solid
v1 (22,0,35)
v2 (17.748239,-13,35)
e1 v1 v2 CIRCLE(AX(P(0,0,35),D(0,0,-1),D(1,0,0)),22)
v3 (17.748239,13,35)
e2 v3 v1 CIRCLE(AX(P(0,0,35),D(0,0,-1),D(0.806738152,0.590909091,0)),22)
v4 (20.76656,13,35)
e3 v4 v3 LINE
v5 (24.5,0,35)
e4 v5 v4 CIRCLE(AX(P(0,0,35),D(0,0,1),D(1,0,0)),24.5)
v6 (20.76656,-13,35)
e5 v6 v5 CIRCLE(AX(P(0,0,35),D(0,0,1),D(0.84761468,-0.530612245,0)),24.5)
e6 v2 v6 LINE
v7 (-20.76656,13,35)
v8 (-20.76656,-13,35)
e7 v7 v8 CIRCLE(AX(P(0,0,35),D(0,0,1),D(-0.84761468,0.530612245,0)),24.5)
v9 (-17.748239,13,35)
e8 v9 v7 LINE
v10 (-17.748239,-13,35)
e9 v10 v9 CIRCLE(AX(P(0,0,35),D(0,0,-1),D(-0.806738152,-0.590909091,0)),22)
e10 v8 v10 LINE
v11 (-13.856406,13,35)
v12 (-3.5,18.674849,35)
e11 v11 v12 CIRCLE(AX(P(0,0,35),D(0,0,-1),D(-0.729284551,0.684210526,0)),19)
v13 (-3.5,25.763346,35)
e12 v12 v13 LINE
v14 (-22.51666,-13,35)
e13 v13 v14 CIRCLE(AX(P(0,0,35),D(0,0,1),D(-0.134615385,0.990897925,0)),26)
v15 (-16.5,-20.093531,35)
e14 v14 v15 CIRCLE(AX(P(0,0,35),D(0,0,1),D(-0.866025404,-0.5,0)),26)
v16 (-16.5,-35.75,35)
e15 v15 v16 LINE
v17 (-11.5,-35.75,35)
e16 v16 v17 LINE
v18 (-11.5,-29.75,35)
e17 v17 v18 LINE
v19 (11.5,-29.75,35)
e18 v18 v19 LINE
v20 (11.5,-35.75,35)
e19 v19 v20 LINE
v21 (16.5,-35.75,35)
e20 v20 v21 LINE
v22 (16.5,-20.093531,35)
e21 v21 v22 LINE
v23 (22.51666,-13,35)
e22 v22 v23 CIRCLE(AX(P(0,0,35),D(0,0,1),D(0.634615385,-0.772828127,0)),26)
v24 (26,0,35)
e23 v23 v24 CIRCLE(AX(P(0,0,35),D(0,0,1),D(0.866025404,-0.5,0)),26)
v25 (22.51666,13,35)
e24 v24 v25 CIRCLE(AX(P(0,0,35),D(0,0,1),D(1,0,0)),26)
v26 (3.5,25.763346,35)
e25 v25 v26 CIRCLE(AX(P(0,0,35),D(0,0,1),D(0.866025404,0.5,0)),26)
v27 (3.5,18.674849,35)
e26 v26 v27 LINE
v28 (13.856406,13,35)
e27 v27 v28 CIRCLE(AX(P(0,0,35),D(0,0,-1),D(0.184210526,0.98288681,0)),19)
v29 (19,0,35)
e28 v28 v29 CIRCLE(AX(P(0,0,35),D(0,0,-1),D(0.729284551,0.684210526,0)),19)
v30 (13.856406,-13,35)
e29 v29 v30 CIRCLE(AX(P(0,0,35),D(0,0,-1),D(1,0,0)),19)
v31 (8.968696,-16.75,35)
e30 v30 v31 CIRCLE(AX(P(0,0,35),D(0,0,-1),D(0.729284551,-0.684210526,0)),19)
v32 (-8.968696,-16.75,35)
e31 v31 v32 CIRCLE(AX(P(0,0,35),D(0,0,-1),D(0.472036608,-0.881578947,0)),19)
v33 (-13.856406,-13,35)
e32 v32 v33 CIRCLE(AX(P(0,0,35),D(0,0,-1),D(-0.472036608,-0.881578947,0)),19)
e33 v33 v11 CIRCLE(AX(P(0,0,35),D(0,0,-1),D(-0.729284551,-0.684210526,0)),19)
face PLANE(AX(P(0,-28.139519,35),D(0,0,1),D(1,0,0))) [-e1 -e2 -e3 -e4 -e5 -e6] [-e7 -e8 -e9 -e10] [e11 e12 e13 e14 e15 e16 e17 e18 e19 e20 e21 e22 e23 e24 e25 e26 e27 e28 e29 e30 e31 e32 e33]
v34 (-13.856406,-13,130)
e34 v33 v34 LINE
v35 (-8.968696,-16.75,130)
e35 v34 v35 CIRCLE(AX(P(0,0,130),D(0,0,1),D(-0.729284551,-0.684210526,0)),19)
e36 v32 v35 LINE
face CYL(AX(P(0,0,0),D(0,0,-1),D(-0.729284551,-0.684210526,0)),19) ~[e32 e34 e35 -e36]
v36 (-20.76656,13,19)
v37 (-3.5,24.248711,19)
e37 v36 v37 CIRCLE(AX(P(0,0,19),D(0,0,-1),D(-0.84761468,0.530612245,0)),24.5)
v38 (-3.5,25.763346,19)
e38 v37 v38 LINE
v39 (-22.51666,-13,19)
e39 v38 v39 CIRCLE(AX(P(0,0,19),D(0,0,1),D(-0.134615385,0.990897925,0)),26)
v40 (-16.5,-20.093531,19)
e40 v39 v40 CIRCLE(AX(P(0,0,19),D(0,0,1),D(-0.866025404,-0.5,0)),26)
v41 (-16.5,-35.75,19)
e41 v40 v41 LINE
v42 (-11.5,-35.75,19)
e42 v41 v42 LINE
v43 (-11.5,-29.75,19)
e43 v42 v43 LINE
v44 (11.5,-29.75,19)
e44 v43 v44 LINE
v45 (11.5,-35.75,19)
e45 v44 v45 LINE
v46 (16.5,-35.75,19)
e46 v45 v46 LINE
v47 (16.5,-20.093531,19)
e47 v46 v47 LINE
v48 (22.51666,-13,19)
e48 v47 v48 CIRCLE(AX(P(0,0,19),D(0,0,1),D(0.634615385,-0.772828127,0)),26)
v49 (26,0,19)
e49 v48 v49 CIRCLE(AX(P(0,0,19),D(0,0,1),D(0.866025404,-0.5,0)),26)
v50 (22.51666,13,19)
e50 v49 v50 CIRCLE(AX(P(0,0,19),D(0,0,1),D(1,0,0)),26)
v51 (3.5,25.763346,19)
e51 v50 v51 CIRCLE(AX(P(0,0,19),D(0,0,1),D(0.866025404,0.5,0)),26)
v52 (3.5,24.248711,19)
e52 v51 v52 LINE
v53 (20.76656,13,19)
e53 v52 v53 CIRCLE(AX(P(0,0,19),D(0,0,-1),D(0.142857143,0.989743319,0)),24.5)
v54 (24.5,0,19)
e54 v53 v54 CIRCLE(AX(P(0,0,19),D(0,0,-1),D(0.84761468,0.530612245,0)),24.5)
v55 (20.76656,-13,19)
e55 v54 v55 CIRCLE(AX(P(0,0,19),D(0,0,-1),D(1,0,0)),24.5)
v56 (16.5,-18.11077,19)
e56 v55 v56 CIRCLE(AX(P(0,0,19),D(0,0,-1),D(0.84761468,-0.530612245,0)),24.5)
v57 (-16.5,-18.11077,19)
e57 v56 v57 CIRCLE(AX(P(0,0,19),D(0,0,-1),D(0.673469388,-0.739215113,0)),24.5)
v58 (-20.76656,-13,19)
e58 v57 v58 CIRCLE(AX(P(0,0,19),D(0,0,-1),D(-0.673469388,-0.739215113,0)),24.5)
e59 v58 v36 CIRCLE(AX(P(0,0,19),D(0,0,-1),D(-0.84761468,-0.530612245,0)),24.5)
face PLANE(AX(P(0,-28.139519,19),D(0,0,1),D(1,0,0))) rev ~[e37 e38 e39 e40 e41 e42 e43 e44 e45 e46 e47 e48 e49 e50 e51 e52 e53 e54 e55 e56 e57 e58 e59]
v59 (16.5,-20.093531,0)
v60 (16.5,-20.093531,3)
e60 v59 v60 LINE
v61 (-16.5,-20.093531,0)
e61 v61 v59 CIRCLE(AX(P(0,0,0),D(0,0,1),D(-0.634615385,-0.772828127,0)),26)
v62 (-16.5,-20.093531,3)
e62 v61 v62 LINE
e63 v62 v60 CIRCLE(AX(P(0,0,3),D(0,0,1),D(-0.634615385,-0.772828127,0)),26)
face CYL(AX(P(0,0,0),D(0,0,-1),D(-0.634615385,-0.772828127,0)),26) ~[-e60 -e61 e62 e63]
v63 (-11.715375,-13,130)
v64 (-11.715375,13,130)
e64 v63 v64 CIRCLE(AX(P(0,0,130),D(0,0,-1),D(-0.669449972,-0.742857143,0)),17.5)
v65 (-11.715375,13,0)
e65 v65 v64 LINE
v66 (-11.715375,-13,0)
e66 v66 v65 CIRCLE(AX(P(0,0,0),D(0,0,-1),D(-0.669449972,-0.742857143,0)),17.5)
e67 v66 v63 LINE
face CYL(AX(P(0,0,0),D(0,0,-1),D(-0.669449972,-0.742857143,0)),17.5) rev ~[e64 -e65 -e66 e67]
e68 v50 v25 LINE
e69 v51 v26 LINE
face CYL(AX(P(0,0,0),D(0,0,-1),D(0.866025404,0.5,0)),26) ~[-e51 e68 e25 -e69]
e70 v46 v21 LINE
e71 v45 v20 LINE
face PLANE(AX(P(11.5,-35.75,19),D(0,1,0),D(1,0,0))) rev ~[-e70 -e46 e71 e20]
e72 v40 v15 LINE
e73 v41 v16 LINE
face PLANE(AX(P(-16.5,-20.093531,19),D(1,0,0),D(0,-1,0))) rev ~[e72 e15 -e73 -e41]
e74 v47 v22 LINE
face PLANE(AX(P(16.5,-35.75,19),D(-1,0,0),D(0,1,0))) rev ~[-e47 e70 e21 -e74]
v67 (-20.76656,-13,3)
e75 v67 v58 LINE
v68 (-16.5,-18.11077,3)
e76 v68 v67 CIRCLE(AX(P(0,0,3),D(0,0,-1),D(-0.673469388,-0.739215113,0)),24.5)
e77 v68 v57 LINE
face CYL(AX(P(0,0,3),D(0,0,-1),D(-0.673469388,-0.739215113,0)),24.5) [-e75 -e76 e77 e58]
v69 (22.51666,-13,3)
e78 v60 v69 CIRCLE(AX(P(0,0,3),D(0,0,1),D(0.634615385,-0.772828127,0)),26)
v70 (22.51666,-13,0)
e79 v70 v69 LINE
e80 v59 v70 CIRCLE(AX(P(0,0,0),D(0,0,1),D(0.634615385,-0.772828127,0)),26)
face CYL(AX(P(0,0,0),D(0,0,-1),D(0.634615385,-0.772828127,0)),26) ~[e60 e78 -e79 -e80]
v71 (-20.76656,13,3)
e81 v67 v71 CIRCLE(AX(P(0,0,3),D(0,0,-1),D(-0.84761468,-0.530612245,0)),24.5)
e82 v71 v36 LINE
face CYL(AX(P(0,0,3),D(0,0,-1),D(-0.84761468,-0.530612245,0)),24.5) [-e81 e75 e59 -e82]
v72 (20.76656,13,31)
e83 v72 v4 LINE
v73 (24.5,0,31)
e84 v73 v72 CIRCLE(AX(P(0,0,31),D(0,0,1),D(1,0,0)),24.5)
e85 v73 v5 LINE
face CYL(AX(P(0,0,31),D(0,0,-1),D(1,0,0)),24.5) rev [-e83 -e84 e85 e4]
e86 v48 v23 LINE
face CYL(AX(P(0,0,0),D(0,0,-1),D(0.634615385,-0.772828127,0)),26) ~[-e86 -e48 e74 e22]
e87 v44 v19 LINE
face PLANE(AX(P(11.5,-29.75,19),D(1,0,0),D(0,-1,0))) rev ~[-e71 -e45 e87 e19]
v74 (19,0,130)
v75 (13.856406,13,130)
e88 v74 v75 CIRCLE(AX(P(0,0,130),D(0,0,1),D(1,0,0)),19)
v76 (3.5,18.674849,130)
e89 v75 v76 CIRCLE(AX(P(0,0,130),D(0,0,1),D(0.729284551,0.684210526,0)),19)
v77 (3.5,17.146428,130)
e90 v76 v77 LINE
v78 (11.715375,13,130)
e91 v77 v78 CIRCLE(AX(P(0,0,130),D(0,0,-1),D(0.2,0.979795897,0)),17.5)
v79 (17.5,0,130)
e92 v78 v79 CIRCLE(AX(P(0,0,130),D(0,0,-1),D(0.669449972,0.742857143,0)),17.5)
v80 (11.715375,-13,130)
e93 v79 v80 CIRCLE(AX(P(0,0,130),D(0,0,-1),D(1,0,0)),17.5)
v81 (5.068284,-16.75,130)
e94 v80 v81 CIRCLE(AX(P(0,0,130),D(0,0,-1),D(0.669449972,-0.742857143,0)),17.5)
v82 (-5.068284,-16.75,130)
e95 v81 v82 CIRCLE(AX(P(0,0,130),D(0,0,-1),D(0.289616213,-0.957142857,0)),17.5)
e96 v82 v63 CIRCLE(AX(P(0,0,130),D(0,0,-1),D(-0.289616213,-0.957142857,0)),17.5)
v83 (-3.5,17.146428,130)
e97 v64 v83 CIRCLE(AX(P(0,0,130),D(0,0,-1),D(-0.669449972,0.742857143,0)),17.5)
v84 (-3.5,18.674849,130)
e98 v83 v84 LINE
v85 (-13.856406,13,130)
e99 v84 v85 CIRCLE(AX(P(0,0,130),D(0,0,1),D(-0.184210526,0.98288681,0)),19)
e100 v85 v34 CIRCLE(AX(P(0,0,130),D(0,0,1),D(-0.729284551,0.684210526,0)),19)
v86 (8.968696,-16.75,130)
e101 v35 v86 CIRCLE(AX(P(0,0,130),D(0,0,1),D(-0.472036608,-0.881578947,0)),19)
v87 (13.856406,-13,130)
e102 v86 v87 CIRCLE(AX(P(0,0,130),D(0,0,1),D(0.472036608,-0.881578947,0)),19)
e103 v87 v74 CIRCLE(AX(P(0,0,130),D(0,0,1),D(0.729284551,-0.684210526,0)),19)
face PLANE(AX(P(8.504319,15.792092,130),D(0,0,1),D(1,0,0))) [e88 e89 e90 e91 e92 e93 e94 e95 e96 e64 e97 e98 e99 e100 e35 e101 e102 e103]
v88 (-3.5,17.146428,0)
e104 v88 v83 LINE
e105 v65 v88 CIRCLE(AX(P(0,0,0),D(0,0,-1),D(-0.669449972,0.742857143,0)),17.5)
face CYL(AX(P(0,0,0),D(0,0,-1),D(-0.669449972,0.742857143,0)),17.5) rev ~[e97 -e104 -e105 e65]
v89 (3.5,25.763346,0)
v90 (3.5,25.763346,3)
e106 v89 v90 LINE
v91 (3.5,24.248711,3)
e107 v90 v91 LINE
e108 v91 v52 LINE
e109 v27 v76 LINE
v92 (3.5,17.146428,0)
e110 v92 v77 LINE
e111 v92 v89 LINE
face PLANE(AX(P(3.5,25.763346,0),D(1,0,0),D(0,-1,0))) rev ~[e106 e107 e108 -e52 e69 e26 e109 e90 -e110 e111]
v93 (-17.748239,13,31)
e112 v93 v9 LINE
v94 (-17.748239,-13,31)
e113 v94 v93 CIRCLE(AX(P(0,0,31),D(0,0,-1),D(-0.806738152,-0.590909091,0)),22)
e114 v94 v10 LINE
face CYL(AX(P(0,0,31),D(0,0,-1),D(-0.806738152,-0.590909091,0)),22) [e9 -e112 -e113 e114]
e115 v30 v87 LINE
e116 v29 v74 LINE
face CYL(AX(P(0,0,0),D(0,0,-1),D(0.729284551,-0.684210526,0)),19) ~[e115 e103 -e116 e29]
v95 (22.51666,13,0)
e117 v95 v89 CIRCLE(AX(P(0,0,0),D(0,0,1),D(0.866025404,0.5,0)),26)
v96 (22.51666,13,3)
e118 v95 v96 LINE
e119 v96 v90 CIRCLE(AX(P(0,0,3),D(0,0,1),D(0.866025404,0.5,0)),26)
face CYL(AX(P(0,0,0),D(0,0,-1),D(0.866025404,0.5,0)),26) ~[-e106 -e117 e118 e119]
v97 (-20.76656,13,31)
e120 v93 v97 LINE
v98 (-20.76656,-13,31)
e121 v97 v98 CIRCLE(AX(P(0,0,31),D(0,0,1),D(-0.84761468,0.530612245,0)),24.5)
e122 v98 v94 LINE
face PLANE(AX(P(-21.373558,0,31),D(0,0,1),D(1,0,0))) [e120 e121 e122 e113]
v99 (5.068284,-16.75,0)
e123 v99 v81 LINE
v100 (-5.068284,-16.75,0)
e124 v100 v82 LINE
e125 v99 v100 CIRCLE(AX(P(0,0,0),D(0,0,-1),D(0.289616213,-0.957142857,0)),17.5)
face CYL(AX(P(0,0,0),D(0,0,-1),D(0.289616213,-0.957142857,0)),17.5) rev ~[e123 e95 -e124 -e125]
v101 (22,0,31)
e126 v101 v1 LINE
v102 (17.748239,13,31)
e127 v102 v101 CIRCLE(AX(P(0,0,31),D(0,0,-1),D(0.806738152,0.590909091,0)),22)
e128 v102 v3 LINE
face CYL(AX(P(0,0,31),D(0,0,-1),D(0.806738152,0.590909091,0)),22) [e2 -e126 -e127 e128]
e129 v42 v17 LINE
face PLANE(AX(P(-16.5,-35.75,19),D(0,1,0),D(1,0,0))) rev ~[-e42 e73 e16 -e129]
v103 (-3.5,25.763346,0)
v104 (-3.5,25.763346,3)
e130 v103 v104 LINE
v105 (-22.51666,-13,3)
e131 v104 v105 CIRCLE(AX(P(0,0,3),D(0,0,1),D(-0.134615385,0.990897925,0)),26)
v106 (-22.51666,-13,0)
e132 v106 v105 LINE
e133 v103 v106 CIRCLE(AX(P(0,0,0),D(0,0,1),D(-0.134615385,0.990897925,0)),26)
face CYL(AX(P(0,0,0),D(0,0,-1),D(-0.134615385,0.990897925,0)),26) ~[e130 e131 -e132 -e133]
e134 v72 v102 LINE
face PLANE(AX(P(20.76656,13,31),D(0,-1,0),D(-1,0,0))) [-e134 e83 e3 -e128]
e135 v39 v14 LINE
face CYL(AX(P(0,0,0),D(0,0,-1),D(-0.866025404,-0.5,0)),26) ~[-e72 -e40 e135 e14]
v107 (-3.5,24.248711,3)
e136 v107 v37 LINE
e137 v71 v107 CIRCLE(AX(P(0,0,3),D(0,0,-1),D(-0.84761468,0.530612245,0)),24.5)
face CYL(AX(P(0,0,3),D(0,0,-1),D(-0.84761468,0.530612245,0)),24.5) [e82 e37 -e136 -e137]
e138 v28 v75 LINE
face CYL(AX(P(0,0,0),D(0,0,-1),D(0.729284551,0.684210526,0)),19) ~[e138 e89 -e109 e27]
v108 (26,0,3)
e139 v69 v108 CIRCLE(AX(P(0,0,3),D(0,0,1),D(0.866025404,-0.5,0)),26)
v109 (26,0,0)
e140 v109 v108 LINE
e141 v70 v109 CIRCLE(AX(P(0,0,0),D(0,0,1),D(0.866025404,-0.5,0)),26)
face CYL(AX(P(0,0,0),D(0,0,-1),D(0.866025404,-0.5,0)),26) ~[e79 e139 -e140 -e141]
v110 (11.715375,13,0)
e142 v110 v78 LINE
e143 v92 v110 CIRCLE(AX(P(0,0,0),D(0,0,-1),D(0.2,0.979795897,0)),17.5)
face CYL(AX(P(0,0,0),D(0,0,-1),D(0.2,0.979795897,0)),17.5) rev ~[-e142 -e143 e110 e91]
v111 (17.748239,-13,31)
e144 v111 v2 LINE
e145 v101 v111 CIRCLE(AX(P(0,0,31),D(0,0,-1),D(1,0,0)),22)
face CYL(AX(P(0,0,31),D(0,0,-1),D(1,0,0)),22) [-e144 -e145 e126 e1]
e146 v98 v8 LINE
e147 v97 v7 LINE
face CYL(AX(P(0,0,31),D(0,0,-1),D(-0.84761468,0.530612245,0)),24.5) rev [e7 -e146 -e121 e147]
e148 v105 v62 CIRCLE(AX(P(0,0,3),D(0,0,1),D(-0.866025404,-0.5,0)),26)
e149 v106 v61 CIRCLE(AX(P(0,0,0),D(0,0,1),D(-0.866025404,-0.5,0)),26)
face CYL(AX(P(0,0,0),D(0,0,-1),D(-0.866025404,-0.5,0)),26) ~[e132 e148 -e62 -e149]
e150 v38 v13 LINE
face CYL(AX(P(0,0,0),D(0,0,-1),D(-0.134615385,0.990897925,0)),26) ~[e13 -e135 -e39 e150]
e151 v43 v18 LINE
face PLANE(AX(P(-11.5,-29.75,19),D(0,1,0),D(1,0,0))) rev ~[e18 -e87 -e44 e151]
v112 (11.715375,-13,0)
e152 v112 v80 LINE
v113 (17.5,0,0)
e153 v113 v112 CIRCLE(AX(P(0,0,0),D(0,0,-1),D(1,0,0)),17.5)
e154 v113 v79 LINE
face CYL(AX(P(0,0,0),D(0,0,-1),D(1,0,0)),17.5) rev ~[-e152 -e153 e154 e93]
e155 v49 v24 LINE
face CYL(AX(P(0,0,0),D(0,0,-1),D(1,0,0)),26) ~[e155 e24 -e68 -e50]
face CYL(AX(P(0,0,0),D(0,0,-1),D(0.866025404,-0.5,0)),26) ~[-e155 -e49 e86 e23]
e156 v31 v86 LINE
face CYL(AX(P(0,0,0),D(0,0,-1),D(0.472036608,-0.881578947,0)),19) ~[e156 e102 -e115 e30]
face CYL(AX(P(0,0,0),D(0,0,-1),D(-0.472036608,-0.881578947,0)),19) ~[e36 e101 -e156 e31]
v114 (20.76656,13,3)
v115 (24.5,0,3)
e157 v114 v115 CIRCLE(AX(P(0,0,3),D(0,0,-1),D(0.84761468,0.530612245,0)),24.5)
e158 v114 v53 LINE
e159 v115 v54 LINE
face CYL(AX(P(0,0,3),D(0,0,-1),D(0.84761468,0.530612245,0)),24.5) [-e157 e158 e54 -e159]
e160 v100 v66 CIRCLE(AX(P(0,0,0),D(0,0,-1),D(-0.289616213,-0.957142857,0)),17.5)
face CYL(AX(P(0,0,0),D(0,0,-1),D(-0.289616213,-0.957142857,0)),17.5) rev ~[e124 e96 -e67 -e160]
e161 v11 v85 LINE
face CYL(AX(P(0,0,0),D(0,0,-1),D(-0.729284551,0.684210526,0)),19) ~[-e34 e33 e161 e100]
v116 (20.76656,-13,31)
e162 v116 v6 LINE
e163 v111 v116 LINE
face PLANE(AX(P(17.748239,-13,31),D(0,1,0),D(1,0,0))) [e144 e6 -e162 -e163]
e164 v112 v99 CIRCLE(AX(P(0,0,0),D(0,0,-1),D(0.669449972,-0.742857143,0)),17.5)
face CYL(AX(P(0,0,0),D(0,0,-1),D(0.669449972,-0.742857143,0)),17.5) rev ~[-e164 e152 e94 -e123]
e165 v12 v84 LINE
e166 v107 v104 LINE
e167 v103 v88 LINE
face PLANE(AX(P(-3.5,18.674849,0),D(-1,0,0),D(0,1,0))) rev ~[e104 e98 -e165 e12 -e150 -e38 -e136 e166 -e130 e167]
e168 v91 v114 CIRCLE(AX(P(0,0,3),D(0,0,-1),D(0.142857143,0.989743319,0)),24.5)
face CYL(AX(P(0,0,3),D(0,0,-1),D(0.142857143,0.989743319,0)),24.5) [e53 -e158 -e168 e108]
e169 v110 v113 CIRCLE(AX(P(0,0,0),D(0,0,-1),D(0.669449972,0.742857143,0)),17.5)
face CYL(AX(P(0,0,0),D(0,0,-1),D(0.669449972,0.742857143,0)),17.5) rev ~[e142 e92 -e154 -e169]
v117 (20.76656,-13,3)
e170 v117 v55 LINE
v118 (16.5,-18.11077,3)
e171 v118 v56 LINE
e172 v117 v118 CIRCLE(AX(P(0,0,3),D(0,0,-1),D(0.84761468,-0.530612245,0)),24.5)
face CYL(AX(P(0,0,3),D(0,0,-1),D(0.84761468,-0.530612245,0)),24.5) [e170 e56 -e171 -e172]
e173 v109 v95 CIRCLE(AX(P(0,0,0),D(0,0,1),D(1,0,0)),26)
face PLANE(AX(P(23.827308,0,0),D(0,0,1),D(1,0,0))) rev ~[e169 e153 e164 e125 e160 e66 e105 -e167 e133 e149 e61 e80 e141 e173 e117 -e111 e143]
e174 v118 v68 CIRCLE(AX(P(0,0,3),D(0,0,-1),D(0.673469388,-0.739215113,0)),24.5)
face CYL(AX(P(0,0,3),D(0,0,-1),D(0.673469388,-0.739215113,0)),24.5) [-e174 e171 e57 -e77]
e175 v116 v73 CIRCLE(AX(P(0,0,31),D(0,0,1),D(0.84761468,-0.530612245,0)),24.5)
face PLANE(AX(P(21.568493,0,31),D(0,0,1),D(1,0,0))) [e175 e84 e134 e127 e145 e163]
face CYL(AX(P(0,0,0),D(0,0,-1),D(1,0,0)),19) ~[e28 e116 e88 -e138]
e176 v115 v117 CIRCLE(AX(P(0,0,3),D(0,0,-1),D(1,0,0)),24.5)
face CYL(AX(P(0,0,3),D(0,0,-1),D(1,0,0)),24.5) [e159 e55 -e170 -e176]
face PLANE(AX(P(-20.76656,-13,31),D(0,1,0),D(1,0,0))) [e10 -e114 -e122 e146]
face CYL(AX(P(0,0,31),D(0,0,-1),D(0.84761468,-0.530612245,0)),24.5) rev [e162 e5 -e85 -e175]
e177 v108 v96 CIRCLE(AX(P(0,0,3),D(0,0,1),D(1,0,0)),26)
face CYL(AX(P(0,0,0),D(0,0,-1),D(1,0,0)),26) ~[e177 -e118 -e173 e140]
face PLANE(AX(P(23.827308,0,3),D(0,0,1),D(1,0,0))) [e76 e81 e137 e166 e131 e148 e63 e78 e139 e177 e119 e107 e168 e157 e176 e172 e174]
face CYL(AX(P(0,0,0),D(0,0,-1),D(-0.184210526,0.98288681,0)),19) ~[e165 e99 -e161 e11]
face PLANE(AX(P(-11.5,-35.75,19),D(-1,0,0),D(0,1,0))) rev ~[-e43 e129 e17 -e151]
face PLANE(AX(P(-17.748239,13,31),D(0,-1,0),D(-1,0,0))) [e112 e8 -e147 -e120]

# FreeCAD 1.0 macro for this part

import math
import FreeCAD as App
import Part
import Sketcher

doc = App.newDocument("Part")
body = doc.addObject("PartDesign::Body", "Body")

sketch1 = body.newObject("Sketcher::SketchObject", "Sketch")
sketch1.AttachmentSupport = (doc.getObject("XY_Plane"), [""])
sketch1.MapMode = "FlatFace"
sketch1.addGeometry(Part.ArcOfCircle(Part.Circle(App.Vector(0, 0, 0), App.Vector(0, 0, 1), 19), math.radians(-43), math.radians(0)), False)
sketch1.addGeometry(Part.ArcOfCircle(Part.Circle(App.Vector(0, 0, 0), App.Vector(0, 0, 1), 19), math.radians(0), math.radians(43)), False)
sketch1.addGeometry(Part.ArcOfCircle(Part.Circle(App.Vector(0, 0, 0), App.Vector(0, 0, 1), 19), math.radians(43), math.radians(79)), False)
sketch1.addGeometry(Part.LineSegment(App.Vector(3.5, 18.7, 0), App.Vector(3.5, 17.1, 0)), False)
sketch1.addGeometry(Part.ArcOfCircle(Part.Circle(App.Vector(0, 0, 0), App.Vector(0, 0, 1), 17.5), math.radians(48), math.radians(78)), False)
sketch1.addGeometry(Part.ArcOfCircle(Part.Circle(App.Vector(0, 0, 0), App.Vector(0, 0, 1), 17.5), math.radians(0), math.radians(48)), False)
sketch1.addGeometry(Part.ArcOfCircle(Part.Circle(App.Vector(0, 0, 0), App.Vector(0, 0, 1), 17.5), math.radians(-48), math.radians(0)), False)
sketch1.addGeometry(Part.ArcOfCircle(Part.Circle(App.Vector(0, 0, 0), App.Vector(0, 0, 1), 17.5), math.radians(-73), math.radians(-48)), False)
sketch1.addGeometry(Part.ArcOfCircle(Part.Circle(App.Vector(0, 0, 0), App.Vector(0, 0, 1), 17.5), math.radians(-107), math.radians(-73)), False)
sketch1.addGeometry(Part.ArcOfCircle(Part.Circle(App.Vector(0, 0, 0), App.Vector(0, 0, 1), 17.5), math.radians(-132), math.radians(-107)), False)
sketch1.addGeometry(Part.ArcOfCircle(Part.Circle(App.Vector(0, 0, 0), App.Vector(0, 0, 1), 17.5), math.radians(132), math.radians(228)), False)
sketch1.addGeometry(Part.ArcOfCircle(Part.Circle(App.Vector(0, 0, 0), App.Vector(0, 0, 1), 17.5), math.radians(102), math.radians(132)), False)
sketch1.addGeometry(Part.LineSegment(App.Vector(-3.5, 17.1, 0), App.Vector(-3.5, 18.7, 0)), False)
sketch1.addGeometry(Part.ArcOfCircle(Part.Circle(App.Vector(0, 0, 0), App.Vector(0, 0, 1), 19), math.radians(101), math.radians(137)), False)
sketch1.addGeometry(Part.ArcOfCircle(Part.Circle(App.Vector(0, 0, 0), App.Vector(0, 0, 1), 19), math.radians(137), math.radians(223)), False)
sketch1.addGeometry(Part.ArcOfCircle(Part.Circle(App.Vector(0, 0, 0), App.Vector(0, 0, 1), 19), math.radians(-136.83), math.radians(-118.17)), False)
sketch1.addGeometry(Part.ArcOfCircle(Part.Circle(App.Vector(0, 0, 0), App.Vector(0, 0, 1), 19), math.radians(-118), math.radians(-62)), False)
sketch1.addGeometry(Part.ArcOfCircle(Part.Circle(App.Vector(0, 0, 0), App.Vector(0, 0, 1), 19), math.radians(-61.83), math.radians(-43.17)), False)
sketch1.addConstraint(Sketcher.Constraint("Tangent", 0, 2, 1, 1))
sketch1.addConstraint(Sketcher.Constraint("Tangent", 1, 2, 2, 1))
sketch1.addConstraint(Sketcher.Constraint("Coincident", 2, 2, 3, 1))
sketch1.addConstraint(Sketcher.Constraint("Coincident", 3, 2, 4, 2))
sketch1.addConstraint(Sketcher.Constraint("Tangent", 4, 1, 5, 2))
sketch1.addConstraint(Sketcher.Constraint("Tangent", 5, 1, 6, 2))
sketch1.addConstraint(Sketcher.Constraint("Tangent", 6, 1, 7, 2))
sketch1.addConstraint(Sketcher.Constraint("Tangent", 7, 1, 8, 2))
sketch1.addConstraint(Sketcher.Constraint("Tangent", 8, 1, 9, 2))
sketch1.addConstraint(Sketcher.Constraint("Tangent", 9, 1, 10, 2))
sketch1.addConstraint(Sketcher.Constraint("Tangent", 10, 1, 11, 2))
sketch1.addConstraint(Sketcher.Constraint("Coincident", 11, 1, 12, 1))
sketch1.addConstraint(Sketcher.Constraint("Coincident", 12, 2, 13, 1))
sketch1.addConstraint(Sketcher.Constraint("Tangent", 13, 2, 14, 1))
sketch1.addConstraint(Sketcher.Constraint("Tangent", 14, 2, 15, 1))
sketch1.addConstraint(Sketcher.Constraint("Tangent", 15, 2, 16, 1))
sketch1.addConstraint(Sketcher.Constraint("Tangent", 16, 2, 17, 1))
sketch1.addConstraint(Sketcher.Constraint("Tangent", 17, 2, 0, 1))
sketch1.addConstraint(Sketcher.Constraint("Vertical", 3))
sketch1.addConstraint(Sketcher.Constraint("Vertical", 12))
sketch1.addConstraint(Sketcher.Constraint("Coincident", 0, 3, -1, 1))
sketch1.addConstraint(Sketcher.Constraint("Coincident", 2, 3, -1, 1))
sketch1.addConstraint(Sketcher.Constraint("Coincident", 4, 3, -1, 1))
sketch1.addConstraint(Sketcher.Constraint("Coincident", 6, 3, -1, 1))
sketch1.addConstraint(Sketcher.Constraint("Coincident", 8, 3, -1, 1))
sketch1.addConstraint(Sketcher.Constraint("Coincident", 10, 3, -1, 1))
sketch1.addConstraint(Sketcher.Constraint("Coincident", 13, 3, -1, 1))
sketch1.addConstraint(Sketcher.Constraint("Coincident", 15, 3, -1, 1))
sketch1.addConstraint(Sketcher.Constraint("Equal", 10, 11))
sketch1.addConstraint(Sketcher.Constraint("Equal", 2, 13))
sketch1.addConstraint(Sketcher.Constraint("PointOnObject", 0, 2, -1))
sketch1.addConstraint(Sketcher.Constraint("PointOnObject", 5, 1, -1))
sketch1.addConstraint(Sketcher.Constraint("Horizontal", 1, 2, 4, 1))
sketch1.addConstraint(Sketcher.Constraint("Horizontal", 7, 1, 8, 1))
sketch1.addConstraint(Sketcher.Constraint("Horizontal", 6, 1, 9, 1))
sketch1.addConstraint(Sketcher.Constraint("Horizontal", 4, 1, 10, 1))
sketch1.addConstraint(Sketcher.Constraint("Horizontal", 3, 2, 11, 1))
sketch1.addConstraint(Sketcher.Constraint("Horizontal", 10, 1, 13, 2))
sketch1.addConstraint(Sketcher.Constraint("Horizontal", 9, 1, 14, 2))
sketch1.addConstraint(Sketcher.Constraint("Horizontal", 8, 1, 15, 2))
sketch1.addConstraint(Sketcher.Constraint("Horizontal", 15, 2, 16, 2))
sketch1.addConstraint(Sketcher.Constraint("Horizontal", 14, 2, 17, 2))
sketch1.addConstraint(Sketcher.Constraint("Vertical", 4, 1, 6, 1))
sketch1.addConstraint(Sketcher.Constraint("Radius", 0, 19.0))
sketch1.addConstraint(Sketcher.Constraint("Radius", 4, 17.5))
sketch1.addConstraint(Sketcher.Constraint("DistanceY", -1, 1, 1, 2, 13.0))
sketch1.addConstraint(Sketcher.Constraint("DistanceX", 11, 1, 3, 2, 7.0))
sketch1.addConstraint(Sketcher.Constraint("DistanceY", 7, 1, -1, 1, 16.75))
pad1 = body.newObject("PartDesign::Pad", "Pad")
pad1.Profile = sketch1
pad1.Length = 130

sketch2 = body.newObject("Sketcher::SketchObject", "Sketch001")
sketch2.AttachmentSupport = (doc.getObject("XY_Plane"), [""])
sketch2.MapMode = "FlatFace"
sketch2.addGeometry(Part.ArcOfCircle(Part.Circle(App.Vector(0, 0, 0), App.Vector(0, 0, 1), 26), math.radians(-30), math.radians(0)), False)
sketch2.addGeometry(Part.ArcOfCircle(Part.Circle(App.Vector(0, 0, 0), App.Vector(0, 0, 1), 26), math.radians(0), math.radians(30)), False)
sketch2.addGeometry(Part.ArcOfCircle(Part.Circle(App.Vector(0, 0, 0), App.Vector(0, 0, 1), 26), math.radians(30), math.radians(82)), False)
sketch2.addGeometry(Part.LineSegment(App.Vector(4, 26, 0), App.Vector(4, 19, 0)), False)
sketch2.addGeometry(Part.ArcOfCircle(Part.Circle(App.Vector(0, 0, 0), App.Vector(0, 0, 1), 19), math.radians(43), math.radians(79)), False)
sketch2.addGeometry(Part.ArcOfCircle(Part.Circle(App.Vector(0, 0, 0), App.Vector(0, 0, 1), 19), math.radians(0), math.radians(43)), False)
sketch2.addGeometry(Part.ArcOfCircle(Part.Circle(App.Vector(0, 0, 0), App.Vector(0, 0, 1), 19), math.radians(-43), math.radians(0)), False)
sketch2.addGeometry(Part.ArcOfCircle(Part.Circle(App.Vector(0, 0, 0), App.Vector(0, 0, 1), 19), math.radians(-61.83), math.radians(-43.17)), False)
sketch2.addGeometry(Part.ArcOfCircle(Part.Circle(App.Vector(0, 0, 0), App.Vector(0, 0, 1), 19), math.radians(-118), math.radians(-62)), False)
sketch2.addGeometry(Part.ArcOfCircle(Part.Circle(App.Vector(0, 0, 0), App.Vector(0, 0, 1), 19), math.radians(-136.83), math.radians(-118.17)), False)
sketch2.addGeometry(Part.ArcOfCircle(Part.Circle(App.Vector(0, 0, 0), App.Vector(0, 0, 1), 19), math.radians(137), math.radians(223)), False)
sketch2.addGeometry(Part.ArcOfCircle(Part.Circle(App.Vector(0, 0, 0), App.Vector(0, 0, 1), 19), math.radians(101), math.radians(137)), False)
sketch2.addGeometry(Part.LineSegment(App.Vector(-4, 19, 0), App.Vector(-4, 26, 0)), False)
sketch2.addGeometry(Part.ArcOfCircle(Part.Circle(App.Vector(0, 0, 0), App.Vector(0, 0, 1), 26), math.radians(98), math.radians(210)), False)
sketch2.addGeometry(Part.ArcOfCircle(Part.Circle(App.Vector(0, 0, 0), App.Vector(0, 0, 1), 26), math.radians(-150), math.radians(-129)), False)
sketch2.addGeometry(Part.ArcOfCircle(Part.Circle(App.Vector(0, 0, 0), App.Vector(0, 0, 1), 26), math.radians(-129), math.radians(-51)), False)
sketch2.addGeometry(Part.ArcOfCircle(Part.Circle(App.Vector(0, 0, 0), App.Vector(0, 0, 1), 26), math.radians(-51), math.radians(-30)), False)
sketch2.addConstraint(Sketcher.Constraint("Tangent", 0, 2, 1, 1))
sketch2.addConstraint(Sketcher.Constraint("Tangent", 1, 2, 2, 1))
sketch2.addConstraint(Sketcher.Constraint("Coincident", 2, 2, 3, 1))
sketch2.addConstraint(Sketcher.Constraint("Coincident", 3, 2, 4, 2))
sketch2.addConstraint(Sketcher.Constraint("Tangent", 4, 1, 5, 2))
sketch2.addConstraint(Sketcher.Constraint("Tangent", 5, 1, 6, 2))
sketch2.addConstraint(Sketcher.Constraint("Tangent", 6, 1, 7, 2))
sketch2.addConstraint(Sketcher.Constraint("Tangent", 7, 1, 8, 2))
sketch2.addConstraint(Sketcher.Constraint("Tangent", 8, 1, 9, 2))
sketch2.addConstraint(Sketcher.Constraint("Tangent", 9, 1, 10, 2))
sketch2.addConstraint(Sketcher.Constraint("Tangent", 10, 1, 11, 2))
sketch2.addConstraint(Sketcher.Constraint("Coincident", 11, 1, 12, 1))
sketch2.addConstraint(Sketcher.Constraint("Coincident", 12, 2, 13, 1))
sketch2.addConstraint(Sketcher.Constraint("Tangent", 13, 2, 14, 1))
sketch2.addConstraint(Sketcher.Constraint("Tangent", 14, 2, 15, 1))
sketch2.addConstraint(Sketcher.Constraint("Tangent", 15, 2, 16, 1))
sketch2.addConstraint(Sketcher.Constraint("Tangent", 16, 2, 0, 1))
sketch2.addConstraint(Sketcher.Constraint("Vertical", 3))
sketch2.addConstraint(Sketcher.Constraint("Vertical", 12))
sketch2.addConstraint(Sketcher.Constraint("Coincident", 0, 3, -1, 1))
sketch2.addConstraint(Sketcher.Constraint("Coincident", 2, 3, -1, 1))
sketch2.addConstraint(Sketcher.Constraint("Coincident", 4, 3, -1, 1))
sketch2.addConstraint(Sketcher.Constraint("Coincident", 6, 3, -1, 1))
sketch2.addConstraint(Sketcher.Constraint("Coincident", 8, 3, -1, 1))
sketch2.addConstraint(Sketcher.Constraint("Coincident", 10, 3, -1, 1))
sketch2.addConstraint(Sketcher.Constraint("Coincident", 13, 3, -1, 1))
sketch2.addConstraint(Sketcher.Constraint("Coincident", 15, 3, -1, 1))
sketch2.addConstraint(Sketcher.Constraint("Equal", 10, 11))
sketch2.addConstraint(Sketcher.Constraint("PointOnObject", 0, 2, -1))
sketch2.addConstraint(Sketcher.Constraint("PointOnObject", 5, 1, -1))
sketch2.addConstraint(Sketcher.Constraint("Horizontal", 1, 2, 4, 1))
sketch2.addConstraint(Sketcher.Constraint("Horizontal", 7, 1, 8, 1))
sketch2.addConstraint(Sketcher.Constraint("Horizontal", 6, 1, 9, 1))
sketch2.addConstraint(Sketcher.Constraint("Horizontal", 4, 1, 10, 1))
sketch2.addConstraint(Sketcher.Constraint("Horizontal", 3, 2, 11, 1))
sketch2.addConstraint(Sketcher.Constraint("Horizontal", 9, 1, 13, 2))
sketch2.addConstraint(Sketcher.Constraint("Horizontal", 14, 2, 15, 2))
sketch2.addConstraint(Sketcher.Constraint("Horizontal", 13, 2, 16, 2))
sketch2.addConstraint(Sketcher.Constraint("Vertical", 4, 1, 6, 1))
sketch2.addConstraint(Sketcher.Constraint("Radius", 0, 26.0))
sketch2.addConstraint(Sketcher.Constraint("Radius", 4, 19.0))
sketch2.addConstraint(Sketcher.Constraint("DistanceY", -1, 1, 1, 2, 13.0))
sketch2.addConstraint(Sketcher.Constraint("DistanceX", 11, 1, 3, 2, 7.0))
sketch2.addConstraint(Sketcher.Constraint("DistanceX", 14, 2, -1, 1, 16.5))
sketch2.addConstraint(Sketcher.Constraint("DistanceY", 7, 1, -1, 1, 16.75))
pad2 = body.newObject("PartDesign::Pad", "Pad001")
pad2.Profile = sketch2
pad2.Length = 35

sketch3 = body.newObject("Sketcher::SketchObject", "Sketch002")
sketch3.AttachmentSupport = (doc.getObject("XY_Plane"), [""])
sketch3.MapMode = "FlatFace"
sketch3.AttachmentOffset = App.Placement(App.Vector(0, 0, 31), App.Rotation())
sketch3.addGeometry(Part.LineSegment(App.Vector(20.8, 13, 0), App.Vector(17.7, 13, 0)), False)
sketch3.addGeometry(Part.ArcOfCircle(Part.Circle(App.Vector(0, 0, 0), App.Vector(0, 0, 1), 22), math.radians(0), math.radians(36)), False)
sketch3.addGeometry(Part.ArcOfCircle(Part.Circle(App.Vector(0, 0, 0), App.Vector(0, 0, 1), 22), math.radians(-36), math.radians(0)), False)
sketch3.addGeometry(Part.LineSegment(App.Vector(17.7, -13, 0), App.Vector(20.8, -13, 0)), False)
sketch3.addGeometry(Part.ArcOfCircle(Part.Circle(App.Vector(0, 0, 0), App.Vector(0, 0, 1), 24.5), math.radians(-32), math.radians(0)), False)
sketch3.addGeometry(Part.ArcOfCircle(Part.Circle(App.Vector(0, 0, 0), App.Vector(0, 0, 1), 24.5), math.radians(0), math.radians(32)), False)
sketch3.addGeometry(Part.ArcOfCircle(Part.Circle(App.Vector(0, 0, 0), App.Vector(0, 0, 1), 22), math.radians(144), math.radians(216)), False)
sketch3.addGeometry(Part.LineSegment(App.Vector(-17.7, 13, 0), App.Vector(-20.8, 13, 0)), False)
sketch3.addGeometry(Part.ArcOfCircle(Part.Circle(App.Vector(0, 0, 0), App.Vector(0, 0, 1), 24.5), math.radians(148), math.radians(212)), False)
sketch3.addGeometry(Part.LineSegment(App.Vector(-20.8, -13, 0), App.Vector(-17.7, -13, 0)), False)
sketch3.addConstraint(Sketcher.Constraint("Coincident", 0, 2, 1, 2))
sketch3.addConstraint(Sketcher.Constraint("Tangent", 1, 1, 2, 2))
sketch3.addConstraint(Sketcher.Constraint("Coincident", 2, 1, 3, 1))
sketch3.addConstraint(Sketcher.Constraint("Coincident", 3, 2, 4, 1))
sketch3.addConstraint(Sketcher.Constraint("Tangent", 4, 2, 5, 1))
sketch3.addConstraint(Sketcher.Constraint("Coincident", 5, 2, 0, 1))
sketch3.addConstraint(Sketcher.Constraint("Coincident", 6, 1, 7, 1))
sketch3.addConstraint(Sketcher.Constraint("Coincident", 7, 2, 8, 1))
sketch3.addConstraint(Sketcher.Constraint("Coincident", 8, 2, 9, 1))
sketch3.addConstraint(Sketcher.Constraint("Coincident", 9, 2, 6, 2))
sketch3.addConstraint(Sketcher.Constraint("Horizontal", 0))
sketch3.addConstraint(Sketcher.Constraint("Horizontal", 3))
sketch3.addConstraint(Sketcher.Constraint("Horizontal", 7))
sketch3.addConstraint(Sketcher.Constraint("Horizontal", 9))
sketch3.addConstraint(Sketcher.Constraint("Coincident", 1, 3, -1, 1))
sketch3.addConstraint(Sketcher.Constraint("Coincident", 4, 3, -1, 1))
sketch3.addConstraint(Sketcher.Constraint("Coincident", 6, 3, -1, 1))
sketch3.addConstraint(Sketcher.Constraint("Coincident", 8, 3, -1, 1))
sketch3.addConstraint(Sketcher.Constraint("Equal", 1, 2))
sketch3.addConstraint(Sketcher.Constraint("Equal", 4, 5))
sketch3.addConstraint(Sketcher.Constraint("Equal", 2, 6))
sketch3.addConstraint(Sketcher.Constraint("Equal", 5, 8))
sketch3.addConstraint(Sketcher.Constraint("PointOnObject", 1, 1, -1))
sketch3.addConstraint(Sketcher.Constraint("PointOnObject", 4, 2, -1))
sketch3.addConstraint(Sketcher.Constraint("Horizontal", 5, 2, 6, 1))
sketch3.addConstraint(Sketcher.Constraint("Horizontal", 3, 2, 8, 2))
sketch3.addConstraint(Sketcher.Constraint("Vertical", 0, 2, 2, 1))
sketch3.addConstraint(Sketcher.Constraint("Radius", 1, 22.0))
sketch3.addConstraint(Sketcher.Constraint("Radius", 4, 24.5))
sketch3.addConstraint(Sketcher.Constraint("DistanceY", -1, 1, 0, 2, 13.0))
pocket1 = body.newObject("PartDesign::Pocket", "Pocket")
pocket1.Profile = sketch3
pocket1.Length = 4
pocket1.Reversed = True

sketch4 = body.newObject("Sketcher::SketchObject", "Sketch003")
sketch4.AttachmentSupport = (doc.getObject("XY_Plane"), [""])
sketch4.MapMode = "FlatFace"
sketch4.AttachmentOffset = App.Placement(App.Vector(0, 0, 19), App.Rotation())
sketch4.addGeometry(Part.LineSegment(App.Vector(16, -36, 0), App.Vector(16, -20, 0)), False)
sketch4.addGeometry(Part.ArcOfCircle(Part.Circle(App.Vector(0, 0, 0), App.Vector(0, 0, 1), 26), math.radians(-129), math.radians(-51)), False)
sketch4.addGeometry(Part.LineSegment(App.Vector(-16, -20, 0), App.Vector(-16, -36, 0)), False)
sketch4.addGeometry(Part.LineSegment(App.Vector(-16, -36, 0), App.Vector(-12, -36, 0)), False)
sketch4.addGeometry(Part.LineSegment(App.Vector(-12, -36, 0), App.Vector(-12, -30, 0)), False)
sketch4.addGeometry(Part.LineSegment(App.Vector(-12, -30, 0), App.Vector(12, -30, 0)), False)
sketch4.addGeometry(Part.LineSegment(App.Vector(12, -30, 0), App.Vector(12, -36, 0)), False)
sketch4.addGeometry(Part.LineSegment(App.Vector(12, -36, 0), App.Vector(16, -36, 0)), False)
sketch4.addConstraint(Sketcher.Constraint("Coincident", 0, 2, 1, 2))
sketch4.addConstraint(Sketcher.Constraint("Coincident", 1, 1, 2, 1))
sketch4.addConstraint(Sketcher.Constraint("Coincident", 2, 2, 3, 1))
sketch4.addConstraint(Sketcher.Constraint("Coincident", 3, 2, 4, 1))
sketch4.addConstraint(Sketcher.Constraint("Coincident", 4, 2, 5, 1))
sketch4.addConstraint(Sketcher.Constraint("Coincident", 5, 2, 6, 1))
sketch4.addConstraint(Sketcher.Constraint("Coincident", 6, 2, 7, 1))
sketch4.addConstraint(Sketcher.Constraint("Coincident", 7, 2, 0, 1))
sketch4.addConstraint(Sketcher.Constraint("Vertical", 0))
sketch4.addConstraint(Sketcher.Constraint("Vertical", 2))
sketch4.addConstraint(Sketcher.Constraint("Horizontal", 3))
sketch4.addConstraint(Sketcher.Constraint("Vertical", 4))
sketch4.addConstraint(Sketcher.Constraint("Horizontal", 5))
sketch4.addConstraint(Sketcher.Constraint("Vertical", 6))
sketch4.addConstraint(Sketcher.Constraint("Horizontal", 7))
sketch4.addConstraint(Sketcher.Constraint("Coincident", 1, 3, -1, 1))
sketch4.addConstraint(Sketcher.Constraint("Symmetric", 3, 2, 6, 2, -2))
sketch4.addConstraint(Sketcher.Constraint("Horizontal", 0, 2, 1, 1))
sketch4.addConstraint(Sketcher.Constraint("Radius", 1, 26.0))
sketch4.addConstraint(Sketcher.Constraint("DistanceX", 3, 1, 3, 2, 5.0))
sketch4.addConstraint(Sketcher.Constraint("DistanceX", 5, 1, 5, 2, 23.0))
sketch4.addConstraint(Sketcher.Constraint("DistanceY", 4, 1, 4, 2, 6.0))
sketch4.addConstraint(Sketcher.Constraint("DistanceY", 2, 2, -1, 1, 35.75))
pad3 = body.newObject("PartDesign::Pad", "Pad002")
pad3.Profile = sketch4
pad3.Length = 16

sketch5 = body.newObject("Sketcher::SketchObject", "Sketch004")
sketch5.AttachmentSupport = (doc.getObject("XY_Plane"), [""])
sketch5.MapMode = "FlatFace"
sketch5.AttachmentOffset = App.Placement(App.Vector(0, 0, 3), App.Rotation())
sketch5.addGeometry(Part.ArcOfCircle(Part.Circle(App.Vector(0, 0, 0), App.Vector(0, 0, 1), 24.5), math.radians(0), math.radians(32)), False)
sketch5.addGeometry(Part.ArcOfCircle(Part.Circle(App.Vector(0, 0, 0), App.Vector(0, 0, 1), 24.5), math.radians(-32), math.radians(0)), False)
sketch5.addGeometry(Part.ArcOfCircle(Part.Circle(App.Vector(0, 0, 0), App.Vector(0, 0, 1), 24.5), math.radians(-47.66), math.radians(-32.05)), False)
sketch5.addGeometry(Part.ArcOfCircle(Part.Circle(App.Vector(0, 0, 0), App.Vector(0, 0, 1), 24.5), math.radians(-132), math.radians(-48)), False)
sketch5.addGeometry(Part.ArcOfCircle(Part.Circle(App.Vector(0, 0, 0), App.Vector(0, 0, 1), 24.5), math.radians(-147.95), math.radians(-132.34)), False)
sketch5.addGeometry(Part.ArcOfCircle(Part.Circle(App.Vector(0, 0, 0), App.Vector(0, 0, 1), 24.5), math.radians(148), math.radians(212)), False)
sketch5.addGeometry(Part.ArcOfCircle(Part.Circle(App.Vector(0, 0, 0), App.Vector(0, 0, 1), 24.5), math.radians(98), math.radians(148)), False)
sketch5.addGeometry(Part.LineSegment(App.Vector(-3.5, 24.2, 0), App.Vector(-3.5, 25.8, 0)), False)
sketch5.addGeometry(Part.ArcOfCircle(Part.Circle(App.Vector(0, 0, 0), App.Vector(0, 0, 1), 26), math.radians(98), math.radians(210)), False)
sketch5.addGeometry(Part.ArcOfCircle(Part.Circle(App.Vector(0, 0, 0), App.Vector(0, 0, 1), 26), math.radians(-150), math.radians(-129)), False)
sketch5.addGeometry(Part.ArcOfCircle(Part.Circle(App.Vector(0, 0, 0), App.Vector(0, 0, 1), 26), math.radians(-129), math.radians(-51)), False)
sketch5.addGeometry(Part.ArcOfCircle(Part.Circle(App.Vector(0, 0, 0), App.Vector(0, 0, 1), 26), math.radians(-51), math.radians(-30)), False)
sketch5.addGeometry(Part.ArcOfCircle(Part.Circle(App.Vector(0, 0, 0), App.Vector(0, 0, 1), 26), math.radians(-30), math.radians(0)), False)
sketch5.addGeometry(Part.ArcOfCircle(Part.Circle(App.Vector(0, 0, 0), App.Vector(0, 0, 1), 26), math.radians(0), math.radians(30)), False)
sketch5.addGeometry(Part.ArcOfCircle(Part.Circle(App.Vector(0, 0, 0), App.Vector(0, 0, 1), 26), math.radians(30), math.radians(82)), False)
sketch5.addGeometry(Part.LineSegment(App.Vector(3.5, 25.8, 0), App.Vector(3.5, 24.2, 0)), False)
sketch5.addGeometry(Part.ArcOfCircle(Part.Circle(App.Vector(0, 0, 0), App.Vector(0, 0, 1), 24.5), math.radians(32), math.radians(82)), False)
sketch5.addConstraint(Sketcher.Constraint("Tangent", 0, 1, 1, 2))
sketch5.addConstraint(Sketcher.Constraint("Tangent", 1, 1, 2, 2))
sketch5.addConstraint(Sketcher.Constraint("Tangent", 2, 1, 3, 2))
sketch5.addConstraint(Sketcher.Constraint("Tangent", 3, 1, 4, 2))
sketch5.addConstraint(Sketcher.Constraint("Tangent", 4, 1, 5, 2))
sketch5.addConstraint(Sketcher.Constraint("Tangent", 5, 1, 6, 2))
sketch5.addConstraint(Sketcher.Constraint("Coincident", 6, 1, 7, 1))
sketch5.addConstraint(Sketcher.Constraint("Coincident", 7, 2, 8, 1))
sketch5.addConstraint(Sketcher.Constraint("Tangent", 8, 2, 9, 1))
sketch5.addConstraint(Sketcher.Constraint("Tangent", 9, 2, 10, 1))
sketch5.addConstraint(Sketcher.Constraint("Tangent", 10, 2, 11, 1))
sketch5.addConstraint(Sketcher.Constraint("Tangent", 11, 2, 12, 1))
sketch5.addConstraint(Sketcher.Constraint("Tangent", 12, 2, 13, 1))
sketch5.addConstraint(Sketcher.Constraint("Tangent", 13, 2, 14, 1))
sketch5.addConstraint(Sketcher.Constraint("Coincident", 14, 2, 15, 1))
sketch5.addConstraint(Sketcher.Constraint("Coincident", 15, 2, 16, 2))
sketch5.addConstraint(Sketcher.Constraint("Tangent", 16, 1, 0, 2))
sketch5.addConstraint(Sketcher.Constraint("Vertical", 7))
sketch5.addConstraint(Sketcher.Constraint("Vertical", 15))
sketch5.addConstraint(Sketcher.Constraint("Coincident", 0, 3, -1, 1))
sketch5.addConstraint(Sketcher.Constraint("Coincident", 2, 3, -1, 1))
sketch5.addConstraint(Sketcher.Constraint("Coincident", 4, 3, -1, 1))
sketch5.addConstraint(Sketcher.Constraint("Coincident", 6, 3, -1, 1))
sketch5.addConstraint(Sketcher.Constraint("Coincident", 8, 3, -1, 1))
sketch5.addConstraint(Sketcher.Constraint("Coincident", 10, 3, -1, 1))
sketch5.addConstraint(Sketcher.Constraint("Coincident", 12, 3, -1, 1))
sketch5.addConstraint(Sketcher.Constraint("Coincident", 14, 3, -1, 1))
sketch5.addConstraint(Sketcher.Constraint("Equal", 6, 16))
sketch5.addConstraint(Sketcher.Constraint("PointOnObject", 0, 1, -1))
sketch5.addConstraint(Sketcher.Constraint("PointOnObject", 12, 2, -1))
sketch5.addConstraint(Sketcher.Constraint("Horizontal", 2, 1, 3, 1))
sketch5.addConstraint(Sketcher.Constraint("Horizontal", 1, 1, 4, 1))
sketch5.addConstraint(Sketcher.Constraint("Horizontal", 4, 1, 8, 2))
sketch5.addConstraint(Sketcher.Constraint("Horizontal", 9, 2, 10, 2))
sketch5.addConstraint(Sketcher.Constraint("Horizontal", 8, 2, 11, 2))
sketch5.addConstraint(Sketcher.Constraint("Horizontal", 5, 1, 13, 2))
sketch5.addConstraint(Sketcher.Constraint("Horizontal", 7, 2, 14, 2))
sketch5.addConstraint(Sketcher.Constraint("Horizontal", 13, 2, 16, 1))
sketch5.addConstraint(Sketcher.Constraint("Vertical", 4, 1, 5, 1))
sketch5.addConstraint(Sketcher.Constraint("Vertical", 3, 1, 9, 2))
sketch5.addConstraint(Sketcher.Constraint("Radius", 8, 26.0))
sketch5.addConstraint(Sketcher.Constraint("Radius", 0, 24.5))
sketch5.addConstraint(Sketcher.Constraint("DistanceY", 1, 1, -1, 1, 13.0))
sketch5.addConstraint(Sketcher.Constraint("DistanceX", 2, 1, 0, 1, 8.0))
sketch5.addConstraint(Sketcher.Constraint("DistanceX", 7, 2, 14, 2, 7.0))
pocket2 = body.newObject("PartDesign::Pocket", "Pocket001")
pocket2.Profile = sketch5
pocket2.Length = 16
pocket2.Reversed = True

doc.recompute()
